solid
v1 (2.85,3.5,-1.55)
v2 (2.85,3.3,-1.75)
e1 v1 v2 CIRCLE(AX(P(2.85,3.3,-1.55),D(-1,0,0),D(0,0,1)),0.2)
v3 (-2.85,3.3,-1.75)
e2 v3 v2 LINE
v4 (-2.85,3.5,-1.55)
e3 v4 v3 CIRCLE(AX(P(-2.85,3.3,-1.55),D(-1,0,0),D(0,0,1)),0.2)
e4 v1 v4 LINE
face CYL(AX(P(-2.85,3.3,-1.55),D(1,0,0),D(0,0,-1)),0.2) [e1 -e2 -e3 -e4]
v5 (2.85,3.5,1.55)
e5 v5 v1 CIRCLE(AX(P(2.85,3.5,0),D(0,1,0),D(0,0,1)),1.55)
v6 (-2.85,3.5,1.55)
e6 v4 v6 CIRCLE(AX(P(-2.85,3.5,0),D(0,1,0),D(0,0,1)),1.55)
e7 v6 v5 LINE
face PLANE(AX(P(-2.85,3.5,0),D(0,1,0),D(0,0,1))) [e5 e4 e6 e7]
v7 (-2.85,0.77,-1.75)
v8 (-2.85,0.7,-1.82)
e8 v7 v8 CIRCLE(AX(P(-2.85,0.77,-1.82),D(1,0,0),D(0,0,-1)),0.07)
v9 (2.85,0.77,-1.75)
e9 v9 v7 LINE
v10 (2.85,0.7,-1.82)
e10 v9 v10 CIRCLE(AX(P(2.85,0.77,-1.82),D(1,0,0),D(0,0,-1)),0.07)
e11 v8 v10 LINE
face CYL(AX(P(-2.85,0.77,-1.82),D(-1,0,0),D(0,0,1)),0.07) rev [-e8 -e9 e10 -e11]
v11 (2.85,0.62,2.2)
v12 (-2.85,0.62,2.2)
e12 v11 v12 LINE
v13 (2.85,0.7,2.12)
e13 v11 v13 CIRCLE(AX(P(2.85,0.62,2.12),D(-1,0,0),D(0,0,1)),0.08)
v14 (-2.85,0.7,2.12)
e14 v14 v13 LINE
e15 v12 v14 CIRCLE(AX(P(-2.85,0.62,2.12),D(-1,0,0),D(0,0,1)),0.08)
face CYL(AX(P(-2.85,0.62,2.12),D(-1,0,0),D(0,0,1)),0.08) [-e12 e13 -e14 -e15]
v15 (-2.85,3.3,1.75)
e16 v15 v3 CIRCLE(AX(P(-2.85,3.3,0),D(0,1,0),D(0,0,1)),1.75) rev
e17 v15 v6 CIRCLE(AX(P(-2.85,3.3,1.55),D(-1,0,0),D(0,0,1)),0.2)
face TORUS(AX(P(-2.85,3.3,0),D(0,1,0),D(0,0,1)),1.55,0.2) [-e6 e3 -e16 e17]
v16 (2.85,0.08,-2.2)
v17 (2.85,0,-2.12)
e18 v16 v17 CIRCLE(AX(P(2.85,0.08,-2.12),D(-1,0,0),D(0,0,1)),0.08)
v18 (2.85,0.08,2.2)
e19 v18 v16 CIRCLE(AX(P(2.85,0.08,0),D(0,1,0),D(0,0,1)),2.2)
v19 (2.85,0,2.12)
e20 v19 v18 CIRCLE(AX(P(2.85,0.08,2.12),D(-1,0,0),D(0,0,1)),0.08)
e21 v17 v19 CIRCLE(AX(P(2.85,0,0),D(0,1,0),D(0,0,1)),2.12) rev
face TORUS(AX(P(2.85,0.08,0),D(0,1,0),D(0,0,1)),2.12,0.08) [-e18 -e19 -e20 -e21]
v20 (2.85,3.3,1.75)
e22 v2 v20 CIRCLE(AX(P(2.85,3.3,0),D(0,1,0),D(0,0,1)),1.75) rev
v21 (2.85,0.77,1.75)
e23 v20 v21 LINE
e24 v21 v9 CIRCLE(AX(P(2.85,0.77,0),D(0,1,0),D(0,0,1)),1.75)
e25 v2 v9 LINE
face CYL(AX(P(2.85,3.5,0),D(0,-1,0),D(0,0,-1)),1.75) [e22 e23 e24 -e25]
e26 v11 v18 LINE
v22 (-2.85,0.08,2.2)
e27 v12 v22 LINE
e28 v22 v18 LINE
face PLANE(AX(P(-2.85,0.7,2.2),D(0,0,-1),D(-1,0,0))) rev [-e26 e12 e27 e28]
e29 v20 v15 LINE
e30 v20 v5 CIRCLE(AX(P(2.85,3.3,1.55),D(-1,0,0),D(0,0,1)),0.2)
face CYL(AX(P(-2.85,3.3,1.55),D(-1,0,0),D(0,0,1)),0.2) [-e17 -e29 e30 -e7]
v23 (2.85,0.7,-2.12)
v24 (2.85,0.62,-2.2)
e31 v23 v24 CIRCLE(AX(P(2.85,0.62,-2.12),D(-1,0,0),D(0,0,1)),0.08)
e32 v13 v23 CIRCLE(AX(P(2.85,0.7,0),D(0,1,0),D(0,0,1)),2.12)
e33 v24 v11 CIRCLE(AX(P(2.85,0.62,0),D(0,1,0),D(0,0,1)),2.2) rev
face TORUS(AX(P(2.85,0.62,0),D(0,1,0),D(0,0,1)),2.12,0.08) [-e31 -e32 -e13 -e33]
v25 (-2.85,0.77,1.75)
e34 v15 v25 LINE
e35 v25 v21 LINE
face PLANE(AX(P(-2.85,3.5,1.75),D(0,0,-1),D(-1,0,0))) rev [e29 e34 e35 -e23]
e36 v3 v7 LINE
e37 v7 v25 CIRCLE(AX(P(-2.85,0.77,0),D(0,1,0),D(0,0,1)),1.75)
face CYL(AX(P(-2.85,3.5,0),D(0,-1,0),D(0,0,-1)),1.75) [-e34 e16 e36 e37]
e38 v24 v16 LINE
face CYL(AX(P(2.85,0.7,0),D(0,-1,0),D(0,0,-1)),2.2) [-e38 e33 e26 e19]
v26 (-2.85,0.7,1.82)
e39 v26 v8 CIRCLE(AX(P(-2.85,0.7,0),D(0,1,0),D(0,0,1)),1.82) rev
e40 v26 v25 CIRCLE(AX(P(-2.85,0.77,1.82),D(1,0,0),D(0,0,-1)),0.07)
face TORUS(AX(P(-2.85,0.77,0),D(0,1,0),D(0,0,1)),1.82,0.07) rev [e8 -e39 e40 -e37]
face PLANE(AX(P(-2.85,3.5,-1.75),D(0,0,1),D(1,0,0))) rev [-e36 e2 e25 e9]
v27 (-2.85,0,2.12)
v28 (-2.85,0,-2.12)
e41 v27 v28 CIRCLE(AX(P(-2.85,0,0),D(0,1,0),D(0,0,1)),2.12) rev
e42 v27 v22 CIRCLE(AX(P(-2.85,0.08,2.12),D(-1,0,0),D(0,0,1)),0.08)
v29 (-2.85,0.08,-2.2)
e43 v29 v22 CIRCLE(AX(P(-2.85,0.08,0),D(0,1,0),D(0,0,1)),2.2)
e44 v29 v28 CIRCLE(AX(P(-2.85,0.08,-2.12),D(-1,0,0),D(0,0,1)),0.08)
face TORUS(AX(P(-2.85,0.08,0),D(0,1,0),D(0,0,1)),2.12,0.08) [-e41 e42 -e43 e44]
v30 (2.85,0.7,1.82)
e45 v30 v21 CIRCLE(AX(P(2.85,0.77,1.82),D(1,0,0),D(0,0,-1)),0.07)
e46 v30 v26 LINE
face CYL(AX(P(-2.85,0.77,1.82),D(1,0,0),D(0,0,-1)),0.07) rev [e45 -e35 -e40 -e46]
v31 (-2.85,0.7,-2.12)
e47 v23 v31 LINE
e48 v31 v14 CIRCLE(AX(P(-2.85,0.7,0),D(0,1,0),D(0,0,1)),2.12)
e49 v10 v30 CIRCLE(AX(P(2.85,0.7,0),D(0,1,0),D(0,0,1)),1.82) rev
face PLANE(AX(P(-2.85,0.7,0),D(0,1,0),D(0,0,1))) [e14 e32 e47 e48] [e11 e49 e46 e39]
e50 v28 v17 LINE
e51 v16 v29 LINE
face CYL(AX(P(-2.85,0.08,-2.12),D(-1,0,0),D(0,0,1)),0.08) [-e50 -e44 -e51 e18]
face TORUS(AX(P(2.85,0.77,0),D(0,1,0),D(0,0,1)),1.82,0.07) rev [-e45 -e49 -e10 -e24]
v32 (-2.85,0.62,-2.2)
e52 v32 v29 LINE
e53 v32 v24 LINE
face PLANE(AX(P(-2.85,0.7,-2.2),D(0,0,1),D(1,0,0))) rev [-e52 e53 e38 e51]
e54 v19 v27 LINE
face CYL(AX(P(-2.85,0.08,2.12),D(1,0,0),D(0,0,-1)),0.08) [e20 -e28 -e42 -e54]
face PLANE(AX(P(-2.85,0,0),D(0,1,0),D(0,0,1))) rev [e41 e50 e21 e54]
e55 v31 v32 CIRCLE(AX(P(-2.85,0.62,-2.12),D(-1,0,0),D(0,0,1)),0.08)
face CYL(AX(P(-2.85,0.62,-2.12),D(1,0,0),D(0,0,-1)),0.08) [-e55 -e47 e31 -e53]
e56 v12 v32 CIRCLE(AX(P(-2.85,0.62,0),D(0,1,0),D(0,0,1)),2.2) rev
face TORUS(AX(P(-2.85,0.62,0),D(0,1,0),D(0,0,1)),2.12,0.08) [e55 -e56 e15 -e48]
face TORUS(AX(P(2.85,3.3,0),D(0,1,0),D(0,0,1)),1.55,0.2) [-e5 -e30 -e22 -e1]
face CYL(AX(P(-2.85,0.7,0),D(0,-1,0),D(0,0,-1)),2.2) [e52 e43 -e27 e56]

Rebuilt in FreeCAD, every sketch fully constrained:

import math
import FreeCAD as App
import Part
import Sketcher
from FreeCAD import Vector


def edges_at(feature, points):
    """Names of the edges that pass closest to the given points."""
    edges = feature.Shape.Edges
    near = lambda p: min(range(len(edges)), key=lambda i: edges[i].distToShape(Part.Vertex(*p))[0])
    return sorted({f"Edge{near(p) + 1}" for p in points})

doc = App.newDocument("Part")
body = doc.addObject("PartDesign::Body", "Body")

# Sketch on XZ plane
sketch1 = body.newObject("Sketcher::SketchObject", "Sketch")
sketch1.AttachmentSupport = (doc.getObject("XZ_Plane"), [""])
sketch1.MapMode = "FlatFace"
sketch1.addGeometry(Part.LineSegment(Vector(2.9, -2.2, 0), Vector(-2.9, -2.2, 0)), False)
sketch1.addGeometry(Part.ArcOfCircle(Part.Circle(Vector(-2.9, 0, 0), Vector(0, 0, 1), 2.2), math.radians(90), math.radians(270)), False)
sketch1.addGeometry(Part.LineSegment(Vector(-2.9, 2.2, 0), Vector(2.9, 2.2, 0)), False)
sketch1.addGeometry(Part.ArcOfCircle(Part.Circle(Vector(2.9, 0, 0), Vector(0, 0, 1), 2.2), math.radians(-90), math.radians(90)), False)
sketch1.addConstraint(Sketcher.Constraint("Tangent", 0, 2, 1, 2))
sketch1.addConstraint(Sketcher.Constraint("Tangent", 1, 1, 2, 1))
sketch1.addConstraint(Sketcher.Constraint("Tangent", 2, 2, 3, 2))
sketch1.addConstraint(Sketcher.Constraint("Tangent", 3, 1, 0, 1))
sketch1.addConstraint(Sketcher.Constraint("Horizontal", 0))
sketch1.addConstraint(Sketcher.Constraint("Horizontal", 2))
sketch1.addConstraint(Sketcher.Constraint("Symmetric", 1, 3, 3, 3, -1, 1))
sketch1.addConstraint(Sketcher.Constraint("Radius", 1, 2.2))
sketch1.addConstraint(Sketcher.Constraint("DistanceX", 0, 2, 0, 1, 5.7))
pad1 = body.newObject("PartDesign::Pad", "Pad")
pad1.Profile = sketch1
pad1.Length = 0.7
pad1.Reversed = True

# Sketch on XZ plane
sketch2 = body.newObject("Sketcher::SketchObject", "Sketch001")
sketch2.AttachmentSupport = (doc.getObject("XZ_Plane"), [""])
sketch2.MapMode = "FlatFace"
sketch2.AttachmentOffset = App.Placement(Vector(0, 0, -0.7), App.Rotation())
sketch2.addGeometry(Part.LineSegment(Vector(2.9, -1.8, 0), Vector(-2.9, -1.8, 0)), False)
sketch2.addGeometry(Part.ArcOfCircle(Part.Circle(Vector(-2.9, 0, 0), Vector(0, 0, 1), 1.8), math.radians(90), math.radians(270)), False)
sketch2.addGeometry(Part.LineSegment(Vector(-2.9, 1.8, 0), Vector(2.9, 1.8, 0)), False)
sketch2.addGeometry(Part.ArcOfCircle(Part.Circle(Vector(2.9, 0, 0), Vector(0, 0, 1), 1.8), math.radians(-90), math.radians(90)), False)
sketch2.addConstraint(Sketcher.Constraint("Tangent", 0, 2, 1, 2))
sketch2.addConstraint(Sketcher.Constraint("Tangent", 1, 1, 2, 1))
sketch2.addConstraint(Sketcher.Constraint("Tangent", 2, 2, 3, 2))
sketch2.addConstraint(Sketcher.Constraint("Tangent", 3, 1, 0, 1))
sketch2.addConstraint(Sketcher.Constraint("Horizontal", 0))
sketch2.addConstraint(Sketcher.Constraint("Horizontal", 2))
sketch2.addConstraint(Sketcher.Constraint("Symmetric", 1, 3, 3, 3, -1, 1))
sketch2.addConstraint(Sketcher.Constraint("Radius", 1, 1.75))
sketch2.addConstraint(Sketcher.Constraint("DistanceX", 0, 2, 0, 1, 5.7))
pad2 = body.newObject("PartDesign::Pad", "Pad001")
pad2.Profile = sketch2
pad2.Length = 2.8
pad2.Reversed = True
doc.recompute()

fillet = body.newObject("PartDesign::Fillet", "Fillet")
fillet.Base = (pad2, edges_at(pad2, [
    (-4.6, 3.5, 0),
    (0, 3.5, 1.75),
    (4.6, 3.5, 0),
    (0, 3.5, -1.75),
]))
fillet.Radius = 0.2
doc.recompute()

fillet2 = body.newObject("PartDesign::Fillet", "Fillet001")
fillet2.Base = (fillet, edges_at(fillet, [
    (5.05, 0.7, 0),
    (0, 0.7, -2.2),
    (-5.05, 0.7, 0),
    (0, 0, -2.2),
    (5.05, 0, 0),
    (0, 0, 2.2),
    (-5.05, 0, 0),
    (0, 0.7, 2.2),
]))
fillet2.Radius = 0.08
doc.recompute()

fillet3 = body.newObject("PartDesign::Fillet", "Fillet002")
fillet3.Base = (fillet2, edges_at(fillet2, [
    (-4.6, 0.7, 0),
    (0, 0.7, 1.75),
    (4.6, 0.7, 0),
    (0, 0.7, -1.75),
]))
fillet3.Radius = 0.07

doc.recompute()
